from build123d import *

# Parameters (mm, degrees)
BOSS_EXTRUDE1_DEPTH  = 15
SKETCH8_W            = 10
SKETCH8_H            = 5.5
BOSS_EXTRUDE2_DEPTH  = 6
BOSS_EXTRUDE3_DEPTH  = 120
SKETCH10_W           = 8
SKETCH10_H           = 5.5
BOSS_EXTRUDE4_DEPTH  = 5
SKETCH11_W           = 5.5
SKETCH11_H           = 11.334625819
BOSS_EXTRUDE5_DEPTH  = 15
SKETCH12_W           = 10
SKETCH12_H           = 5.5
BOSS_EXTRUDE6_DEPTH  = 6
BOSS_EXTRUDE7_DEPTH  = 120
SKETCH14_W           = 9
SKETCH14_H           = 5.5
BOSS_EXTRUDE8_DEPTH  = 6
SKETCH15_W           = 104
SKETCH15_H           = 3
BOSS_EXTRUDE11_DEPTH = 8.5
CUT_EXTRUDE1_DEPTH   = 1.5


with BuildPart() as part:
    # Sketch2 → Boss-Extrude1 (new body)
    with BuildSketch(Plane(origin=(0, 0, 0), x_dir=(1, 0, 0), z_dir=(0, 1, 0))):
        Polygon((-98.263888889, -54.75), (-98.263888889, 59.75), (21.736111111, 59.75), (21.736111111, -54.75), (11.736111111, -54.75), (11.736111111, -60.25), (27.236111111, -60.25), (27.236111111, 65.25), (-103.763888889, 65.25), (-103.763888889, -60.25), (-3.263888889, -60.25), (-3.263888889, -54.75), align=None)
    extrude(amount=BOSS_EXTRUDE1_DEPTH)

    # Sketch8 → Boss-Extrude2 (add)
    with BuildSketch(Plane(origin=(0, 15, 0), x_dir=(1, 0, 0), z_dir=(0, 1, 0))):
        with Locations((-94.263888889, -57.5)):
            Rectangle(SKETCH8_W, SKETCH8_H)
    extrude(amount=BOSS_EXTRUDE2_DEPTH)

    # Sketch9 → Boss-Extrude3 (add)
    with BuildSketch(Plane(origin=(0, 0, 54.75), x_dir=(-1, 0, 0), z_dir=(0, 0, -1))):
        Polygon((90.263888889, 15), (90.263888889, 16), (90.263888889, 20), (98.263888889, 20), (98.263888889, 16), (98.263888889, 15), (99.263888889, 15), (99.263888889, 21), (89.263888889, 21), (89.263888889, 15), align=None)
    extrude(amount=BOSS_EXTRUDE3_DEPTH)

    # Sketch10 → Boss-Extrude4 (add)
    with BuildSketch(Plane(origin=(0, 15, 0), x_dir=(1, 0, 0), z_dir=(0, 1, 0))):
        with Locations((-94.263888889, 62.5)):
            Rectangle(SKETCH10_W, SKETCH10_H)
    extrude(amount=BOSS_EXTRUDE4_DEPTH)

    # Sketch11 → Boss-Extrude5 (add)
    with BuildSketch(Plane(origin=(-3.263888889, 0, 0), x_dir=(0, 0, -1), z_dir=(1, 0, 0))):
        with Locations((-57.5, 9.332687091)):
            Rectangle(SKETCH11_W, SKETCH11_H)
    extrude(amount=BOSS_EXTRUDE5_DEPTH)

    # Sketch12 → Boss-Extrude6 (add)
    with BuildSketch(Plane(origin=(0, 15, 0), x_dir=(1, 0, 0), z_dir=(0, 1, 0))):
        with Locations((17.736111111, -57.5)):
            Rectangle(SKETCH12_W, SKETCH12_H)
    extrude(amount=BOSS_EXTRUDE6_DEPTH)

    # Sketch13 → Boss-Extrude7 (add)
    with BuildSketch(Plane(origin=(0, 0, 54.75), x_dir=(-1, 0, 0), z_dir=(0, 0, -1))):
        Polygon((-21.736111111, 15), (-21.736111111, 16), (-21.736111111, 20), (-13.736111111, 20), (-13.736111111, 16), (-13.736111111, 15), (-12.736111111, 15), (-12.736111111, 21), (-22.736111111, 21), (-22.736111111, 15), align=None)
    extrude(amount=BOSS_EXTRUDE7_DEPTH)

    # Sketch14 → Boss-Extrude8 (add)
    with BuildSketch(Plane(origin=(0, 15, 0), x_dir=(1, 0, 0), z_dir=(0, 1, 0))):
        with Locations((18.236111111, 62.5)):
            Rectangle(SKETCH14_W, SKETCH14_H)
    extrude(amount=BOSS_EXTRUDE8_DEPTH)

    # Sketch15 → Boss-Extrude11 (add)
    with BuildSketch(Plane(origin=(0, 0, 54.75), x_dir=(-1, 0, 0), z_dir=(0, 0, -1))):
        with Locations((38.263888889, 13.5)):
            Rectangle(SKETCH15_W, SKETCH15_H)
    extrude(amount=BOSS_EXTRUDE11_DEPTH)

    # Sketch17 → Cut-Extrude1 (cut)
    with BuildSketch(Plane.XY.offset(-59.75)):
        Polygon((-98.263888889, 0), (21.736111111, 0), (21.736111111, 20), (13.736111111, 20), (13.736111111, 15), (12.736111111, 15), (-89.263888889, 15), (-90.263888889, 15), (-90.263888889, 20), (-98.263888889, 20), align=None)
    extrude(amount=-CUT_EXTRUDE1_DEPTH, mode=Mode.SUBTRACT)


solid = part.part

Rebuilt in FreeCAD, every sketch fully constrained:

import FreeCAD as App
import Part
import Sketcher

V = App.Vector
Q = App.Units.Quantity

doc = App.newDocument("Part")
body = doc.addObject("PartDesign::Body", "Body")

sketch1 = body.newObject("Sketcher::SketchObject", "Sketch")
sketch1.AttachmentSupport = (doc.getObject("XZ_Plane"), [""])
sketch1.MapMode = "FlatFace"
sketch1.addGeometry(Part.LineSegment(V(-98.263889, 54.75, 0), V(-98.263889, -59.75, 0)), False)
sketch1.addGeometry(Part.LineSegment(V(-98.263889, -59.75, 0), V(21.736111, -59.75, 0)), False)
sketch1.addGeometry(Part.LineSegment(V(21.736111, -59.75, 0), V(21.736111, 54.75, 0)), False)
sketch1.addGeometry(Part.LineSegment(V(21.736111, 54.75, 0), V(11.736111, 54.75, 0)), False)
sketch1.addGeometry(Part.LineSegment(V(11.736111, 54.75, 0), V(11.736111, 60.25, 0)), False)
sketch1.addGeometry(Part.LineSegment(V(11.736111, 60.25, 0), V(27.236111, 60.25, 0)), False)
sketch1.addGeometry(Part.LineSegment(V(27.236111, 60.25, 0), V(27.236111, -65.25, 0)), False)
sketch1.addGeometry(Part.LineSegment(V(27.236111, -65.25, 0), V(-103.763889, -65.25, 0)), False)
sketch1.addGeometry(Part.LineSegment(V(-103.763889, -65.25, 0), V(-103.763889, 60.25, 0)), False)
sketch1.addGeometry(Part.LineSegment(V(-103.763889, 60.25, 0), V(-3.263889, 60.25, 0)), False)
sketch1.addGeometry(Part.LineSegment(V(-3.263889, 60.25, 0), V(-3.263889, 54.75, 0)), False)
sketch1.addGeometry(Part.LineSegment(V(-3.263889, 54.75, 0), V(-98.263889, 54.75, 0)), False)
sketch1.addConstraint(Sketcher.Constraint("Coincident", 0, 2, 1, 1))
sketch1.addConstraint(Sketcher.Constraint("Coincident", 1, 2, 2, 1))
sketch1.addConstraint(Sketcher.Constraint("Coincident", 2, 2, 3, 1))
sketch1.addConstraint(Sketcher.Constraint("Coincident", 3, 2, 4, 1))
sketch1.addConstraint(Sketcher.Constraint("Coincident", 4, 2, 5, 1))
sketch1.addConstraint(Sketcher.Constraint("Coincident", 5, 2, 6, 1))
sketch1.addConstraint(Sketcher.Constraint("Coincident", 6, 2, 7, 1))
sketch1.addConstraint(Sketcher.Constraint("Coincident", 7, 2, 8, 1))
sketch1.addConstraint(Sketcher.Constraint("Coincident", 8, 2, 9, 1))
sketch1.addConstraint(Sketcher.Constraint("Coincident", 9, 2, 10, 1))
sketch1.addConstraint(Sketcher.Constraint("Coincident", 10, 2, 11, 1))
sketch1.addConstraint(Sketcher.Constraint("Coincident", 11, 2, 0, 1))
sketch1.addConstraint(Sketcher.Constraint("Vertical", 0))
sketch1.addConstraint(Sketcher.Constraint("Horizontal", 1))
sketch1.addConstraint(Sketcher.Constraint("Vertical", 2))
sketch1.addConstraint(Sketcher.Constraint("Horizontal", 3))
sketch1.addConstraint(Sketcher.Constraint("Vertical", 4))
sketch1.addConstraint(Sketcher.Constraint("Horizontal", 5))
sketch1.addConstraint(Sketcher.Constraint("Vertical", 6))
sketch1.addConstraint(Sketcher.Constraint("Horizontal", 7))
sketch1.addConstraint(Sketcher.Constraint("Vertical", 8))
sketch1.addConstraint(Sketcher.Constraint("Horizontal", 9))
sketch1.addConstraint(Sketcher.Constraint("Vertical", 10))
sketch1.addConstraint(Sketcher.Constraint("Horizontal", 11))
sketch1.addConstraint(Sketcher.Constraint("Horizontal", 5, 2, 8, 2))
sketch1.addConstraint(Sketcher.Constraint("Horizontal", 3, 2, 10, 2))
sketch1.addConstraint(Sketcher.Constraint("DistanceX", 1, 1, 1, 2, Q("120 mm")))
sketch1.addConstraint(Sketcher.Constraint("DistanceX", 3, 2, 3, 1, Q("10 mm")))
sketch1.addConstraint(Sketcher.Constraint("DistanceX", 7, 2, 7, 1, Q("131 mm")))
sketch1.addConstraint(Sketcher.Constraint("DistanceX", 11, 2, 11, 1, Q("95 mm")))
sketch1.addConstraint(Sketcher.Constraint("DistanceX", 5, 1, 5, 2, Q("15.5 mm")))
sketch1.addConstraint(Sketcher.Constraint("DistanceY", 0, 2, 0, 1, Q("114.5 mm")))
sketch1.addConstraint(Sketcher.Constraint("DistanceY", 4, 1, 4, 2, Q("5.5 mm")))
sketch1.addConstraint(Sketcher.Constraint("DistanceY", 6, 2, 6, 1, Q("125.5 mm")))
sketch1.addConstraint(Sketcher.Constraint("DistanceY", 0, 2, -1, 1, Q("59.75 mm")))
sketch1.addConstraint(Sketcher.Constraint("DistanceX", 0, 2, -1, 1, Q("98.263889 mm")))
pad1 = body.newObject("PartDesign::Pad", "Pad")
pad1.Profile = sketch1
pad1.Length = 15
pad1.Reversed = True

sketch2 = body.newObject("Sketcher::SketchObject", "Sketch001")
sketch2.AttachmentSupport = (doc.getObject("XZ_Plane"), [""])
sketch2.MapMode = "FlatFace"
sketch2.AttachmentOffset = App.Placement(V(0, 0, -15), App.Rotation())
sketch2.addGeometry(Part.LineSegment(V(-99.263889, 54.75, 0), V(-99.263889, 60.25, 0)), False)
sketch2.addGeometry(Part.LineSegment(V(-99.263889, 60.25, 0), V(-89.263889, 60.25, 0)), False)
sketch2.addGeometry(Part.LineSegment(V(-89.263889, 60.25, 0), V(-89.263889, 54.75, 0)), False)
sketch2.addGeometry(Part.LineSegment(V(-89.263889, 54.75, 0), V(-99.263889, 54.75, 0)), False)
sketch2.addConstraint(Sketcher.Constraint("Coincident", 0, 2, 1, 1))
sketch2.addConstraint(Sketcher.Constraint("Coincident", 1, 2, 2, 1))
sketch2.addConstraint(Sketcher.Constraint("Coincident", 2, 2, 3, 1))
sketch2.addConstraint(Sketcher.Constraint("Coincident", 3, 2, 0, 1))
sketch2.addConstraint(Sketcher.Constraint("Vertical", 0))
sketch2.addConstraint(Sketcher.Constraint("Horizontal", 1))
sketch2.addConstraint(Sketcher.Constraint("Vertical", 2))
sketch2.addConstraint(Sketcher.Constraint("Horizontal", 3))
sketch2.addConstraint(Sketcher.Constraint("DistanceX", 1, 1, 1, 2, Q("10 mm")))
sketch2.addConstraint(Sketcher.Constraint("DistanceY", 0, 1, 0, 2, Q("5.5 mm")))
sketch2.addConstraint(Sketcher.Constraint("DistanceY", -1, 1, 0, 2, Q("60.25 mm")))
sketch2.addConstraint(Sketcher.Constraint("DistanceX", 0, 2, -1, 1, Q("99.263889 mm")))
pad2 = body.newObject("PartDesign::Pad", "Pad001")
pad2.Profile = sketch2
pad2.Length = 6
pad2.Reversed = True

sketch3 = body.newObject("Sketcher::SketchObject", "Sketch002")
sketch3.AttachmentSupport = (doc.getObject("XY_Plane"), [""])
sketch3.MapMode = "FlatFace"
sketch3.AttachmentOffset = App.Placement(V(0, 0, 54.75), App.Rotation())
sketch3.addGeometry(Part.LineSegment(V(-90.263889, 15, 0), V(-90.263889, 20, 0)), False)
sketch3.addGeometry(Part.LineSegment(V(-90.263889, 20, 0), V(-98.263889, 20, 0)), False)
sketch3.addGeometry(Part.LineSegment(V(-98.263889, 20, 0), V(-98.263889, 15, 0)), False)
sketch3.addGeometry(Part.LineSegment(V(-98.263889, 15, 0), V(-99.263889, 15, 0)), False)
sketch3.addGeometry(Part.LineSegment(V(-99.263889, 15, 0), V(-99.263889, 21, 0)), False)
sketch3.addGeometry(Part.LineSegment(V(-99.263889, 21, 0), V(-89.263889, 21, 0)), False)
sketch3.addGeometry(Part.LineSegment(V(-89.263889, 21, 0), V(-89.263889, 15, 0)), False)
sketch3.addGeometry(Part.LineSegment(V(-89.263889, 15, 0), V(-90.263889, 15, 0)), False)
sketch3.addConstraint(Sketcher.Constraint("Coincident", 0, 2, 1, 1))
sketch3.addConstraint(Sketcher.Constraint("Coincident", 1, 2, 2, 1))
sketch3.addConstraint(Sketcher.Constraint("Coincident", 2, 2, 3, 1))
sketch3.addConstraint(Sketcher.Constraint("Coincident", 3, 2, 4, 1))
sketch3.addConstraint(Sketcher.Constraint("Coincident", 4, 2, 5, 1))
sketch3.addConstraint(Sketcher.Constraint("Coincident", 5, 2, 6, 1))
sketch3.addConstraint(Sketcher.Constraint("Coincident", 6, 2, 7, 1))
sketch3.addConstraint(Sketcher.Constraint("Coincident", 7, 2, 0, 1))
sketch3.addConstraint(Sketcher.Constraint("Vertical", 0))
sketch3.addConstraint(Sketcher.Constraint("Horizontal", 1))
sketch3.addConstraint(Sketcher.Constraint("Vertical", 2))
sketch3.addConstraint(Sketcher.Constraint("Horizontal", 3))
sketch3.addConstraint(Sketcher.Constraint("Vertical", 4))
sketch3.addConstraint(Sketcher.Constraint("Horizontal", 5))
sketch3.addConstraint(Sketcher.Constraint("Vertical", 6))
sketch3.addConstraint(Sketcher.Constraint("Horizontal", 7))
sketch3.addConstraint(Sketcher.Constraint("Horizontal", 3, 2, 6, 2))
sketch3.addConstraint(Sketcher.Constraint("Equal", 3, 7))
sketch3.addConstraint(Sketcher.Constraint("DistanceX", 1, 2, 1, 1, Q("8 mm")))
sketch3.addConstraint(Sketcher.Constraint("DistanceX", 3, 2, 3, 1, Q("1 mm")))
sketch3.addConstraint(Sketcher.Constraint("DistanceY", 0, 1, 0, 2, Q("5 mm")))
sketch3.addConstraint(Sketcher.Constraint("DistanceY", 4, 1, 4, 2, Q("6 mm")))
sketch3.addConstraint(Sketcher.Constraint("DistanceY", -1, 1, 0, 2, Q("20 mm")))
sketch3.addConstraint(Sketcher.Constraint("DistanceX", 0, 2, -1, 1, Q("90.263889 mm")))
pad3 = body.newObject("PartDesign::Pad", "Pad002")
pad3.Profile = sketch3
pad3.Length = 120
pad3.Reversed = True

sketch4 = body.newObject("Sketcher::SketchObject", "Sketch003")
sketch4.AttachmentSupport = (doc.getObject("XZ_Plane"), [""])
sketch4.MapMode = "FlatFace"
sketch4.AttachmentOffset = App.Placement(V(0, 0, -15), App.Rotation())
sketch4.addGeometry(Part.LineSegment(V(-98.263889, -65.25, 0), V(-98.263889, -59.75, 0)), False)
sketch4.addGeometry(Part.LineSegment(V(-98.263889, -59.75, 0), V(-90.263889, -59.75, 0)), False)
sketch4.addGeometry(Part.LineSegment(V(-90.263889, -59.75, 0), V(-90.263889, -65.25, 0)), False)
sketch4.addGeometry(Part.LineSegment(V(-90.263889, -65.25, 0), V(-98.263889, -65.25, 0)), False)
sketch4.addConstraint(Sketcher.Constraint("Coincident", 0, 2, 1, 1))
sketch4.addConstraint(Sketcher.Constraint("Coincident", 1, 2, 2, 1))
sketch4.addConstraint(Sketcher.Constraint("Coincident", 2, 2, 3, 1))
sketch4.addConstraint(Sketcher.Constraint("Coincident", 3, 2, 0, 1))
sketch4.addConstraint(Sketcher.Constraint("Vertical", 0))
sketch4.addConstraint(Sketcher.Constraint("Horizontal", 1))
sketch4.addConstraint(Sketcher.Constraint("Vertical", 2))
sketch4.addConstraint(Sketcher.Constraint("Horizontal", 3))
sketch4.addConstraint(Sketcher.Constraint("DistanceX", 1, 1, 1, 2, Q("8 mm")))
sketch4.addConstraint(Sketcher.Constraint("DistanceY", 0, 1, 0, 2, Q("5.5 mm")))
sketch4.addConstraint(Sketcher.Constraint("DistanceY", 0, 2, -1, 1, Q("59.75 mm")))
sketch4.addConstraint(Sketcher.Constraint("DistanceX", 0, 2, -1, 1, Q("98.263889 mm")))
pad4 = body.newObject("PartDesign::Pad", "Pad003")
pad4.Profile = sketch4
pad4.Length = 5
pad4.Reversed = True

sketch5 = body.newObject("Sketcher::SketchObject", "Sketch004")
sketch5.AttachmentSupport = (doc.getObject("YZ_Plane"), [""])
sketch5.MapMode = "FlatFace"
sketch5.AttachmentOffset = App.Placement(V(0, 0, -3.263889), App.Rotation())
sketch5.addGeometry(Part.LineSegment(V(15, 60.25, 0), V(3.665374, 60.25, 0)), False)
sketch5.addGeometry(Part.LineSegment(V(3.665374, 60.25, 0), V(3.665374, 54.75, 0)), False)
sketch5.addGeometry(Part.LineSegment(V(3.665374, 54.75, 0), V(15, 54.75, 0)), False)
sketch5.addGeometry(Part.LineSegment(V(15, 54.75, 0), V(15, 60.25, 0)), False)
sketch5.addConstraint(Sketcher.Constraint("Coincident", 0, 2, 1, 1))
sketch5.addConstraint(Sketcher.Constraint("Coincident", 1, 2, 2, 1))
sketch5.addConstraint(Sketcher.Constraint("Coincident", 2, 2, 3, 1))
sketch5.addConstraint(Sketcher.Constraint("Coincident", 3, 2, 0, 1))
sketch5.addConstraint(Sketcher.Constraint("Horizontal", 0))
sketch5.addConstraint(Sketcher.Constraint("Vertical", 1))
sketch5.addConstraint(Sketcher.Constraint("Horizontal", 2))
sketch5.addConstraint(Sketcher.Constraint("Vertical", 3))
sketch5.addConstraint(Sketcher.Constraint("DistanceY", 1, 2, 1, 1, Q("5.5 mm")))
sketch5.addConstraint(Sketcher.Constraint("DistanceX", -1, 1, 2, 2, Q("15 mm")))
sketch5.addConstraint(Sketcher.Constraint("DistanceY", -1, 1, 0, 2, Q("60.25 mm")))
sketch5.addConstraint(Sketcher.Constraint("DistanceX", 0, 2, 0, 1, Q("11.334626 mm")))
pad5 = body.newObject("PartDesign::Pad", "Pad004")
pad5.Profile = sketch5
pad5.Length = 15

sketch6 = body.newObject("Sketcher::SketchObject", "Sketch005")
sketch6.AttachmentSupport = (doc.getObject("XZ_Plane"), [""])
sketch6.MapMode = "FlatFace"
sketch6.AttachmentOffset = App.Placement(V(0, 0, -15), App.Rotation())
sketch6.addGeometry(Part.LineSegment(V(12.736111, 54.75, 0), V(12.736111, 60.25, 0)), False)
sketch6.addGeometry(Part.LineSegment(V(12.736111, 60.25, 0), V(22.736111, 60.25, 0)), False)
sketch6.addGeometry(Part.LineSegment(V(22.736111, 60.25, 0), V(22.736111, 54.75, 0)), False)
sketch6.addGeometry(Part.LineSegment(V(22.736111, 54.75, 0), V(12.736111, 54.75, 0)), False)
sketch6.addConstraint(Sketcher.Constraint("Coincident", 0, 2, 1, 1))
sketch6.addConstraint(Sketcher.Constraint("Coincident", 1, 2, 2, 1))
sketch6.addConstraint(Sketcher.Constraint("Coincident", 2, 2, 3, 1))
sketch6.addConstraint(Sketcher.Constraint("Coincident", 3, 2, 0, 1))
sketch6.addConstraint(Sketcher.Constraint("Vertical", 0))
sketch6.addConstraint(Sketcher.Constraint("Horizontal", 1))
sketch6.addConstraint(Sketcher.Constraint("Vertical", 2))
sketch6.addConstraint(Sketcher.Constraint("Horizontal", 3))
sketch6.addConstraint(Sketcher.Constraint("DistanceX", 1, 1, 1, 2, Q("10 mm")))
sketch6.addConstraint(Sketcher.Constraint("DistanceY", 0, 1, 0, 2, Q("5.5 mm")))
sketch6.addConstraint(Sketcher.Constraint("DistanceY", -1, 1, 0, 2, Q("60.25 mm")))
sketch6.addConstraint(Sketcher.Constraint("DistanceX", -1, 1, 0, 2, Q("12.736111 mm")))
pad6 = body.newObject("PartDesign::Pad", "Pad005")
pad6.Profile = sketch6
pad6.Length = 6
pad6.Reversed = True

sketch7 = body.newObject("Sketcher::SketchObject", "Sketch006")
sketch7.AttachmentSupport = (doc.getObject("XY_Plane"), [""])
sketch7.MapMode = "FlatFace"
sketch7.AttachmentOffset = App.Placement(V(0, 0, 54.75), App.Rotation())
sketch7.addGeometry(Part.LineSegment(V(21.736111, 15, 0), V(21.736111, 20, 0)), False)
sketch7.addGeometry(Part.LineSegment(V(21.736111, 20, 0), V(13.736111, 20, 0)), False)
sketch7.addGeometry(Part.LineSegment(V(13.736111, 20, 0), V(13.736111, 15, 0)), False)
sketch7.addGeometry(Part.LineSegment(V(13.736111, 15, 0), V(12.736111, 15, 0)), False)
sketch7.addGeometry(Part.LineSegment(V(12.736111, 15, 0), V(12.736111, 21, 0)), False)
sketch7.addGeometry(Part.LineSegment(V(12.736111, 21, 0), V(22.736111, 21, 0)), False)
sketch7.addGeometry(Part.LineSegment(V(22.736111, 21, 0), V(22.736111, 15, 0)), False)
sketch7.addGeometry(Part.LineSegment(V(22.736111, 15, 0), V(21.736111, 15, 0)), False)
sketch7.addConstraint(Sketcher.Constraint("Coincident", 0, 2, 1, 1))
sketch7.addConstraint(Sketcher.Constraint("Coincident", 1, 2, 2, 1))
sketch7.addConstraint(Sketcher.Constraint("Coincident", 2, 2, 3, 1))
sketch7.addConstraint(Sketcher.Constraint("Coincident", 3, 2, 4, 1))
sketch7.addConstraint(Sketcher.Constraint("Coincident", 4, 2, 5, 1))
sketch7.addConstraint(Sketcher.Constraint("Coincident", 5, 2, 6, 1))
sketch7.addConstraint(Sketcher.Constraint("Coincident", 6, 2, 7, 1))
sketch7.addConstraint(Sketcher.Constraint("Coincident", 7, 2, 0, 1))
sketch7.addConstraint(Sketcher.Constraint("Vertical", 0))
sketch7.addConstraint(Sketcher.Constraint("Horizontal", 1))
sketch7.addConstraint(Sketcher.Constraint("Vertical", 2))
sketch7.addConstraint(Sketcher.Constraint("Horizontal", 3))
sketch7.addConstraint(Sketcher.Constraint("Vertical", 4))
sketch7.addConstraint(Sketcher.Constraint("Horizontal", 5))
sketch7.addConstraint(Sketcher.Constraint("Vertical", 6))
sketch7.addConstraint(Sketcher.Constraint("Horizontal", 7))
sketch7.addConstraint(Sketcher.Constraint("Horizontal", 3, 2, 6, 2))
sketch7.addConstraint(Sketcher.Constraint("Equal", 3, 7))
sketch7.addConstraint(Sketcher.Constraint("DistanceX", 1, 2, 1, 1, Q("8 mm")))
sketch7.addConstraint(Sketcher.Constraint("DistanceX", 3, 2, 3, 1, Q("1 mm")))
sketch7.addConstraint(Sketcher.Constraint("DistanceY", 0, 1, 0, 2, Q("5 mm")))
sketch7.addConstraint(Sketcher.Constraint("DistanceY", 4, 1, 4, 2, Q("6 mm")))
sketch7.addConstraint(Sketcher.Constraint("DistanceY", -1, 1, 0, 2, Q("20 mm")))
sketch7.addConstraint(Sketcher.Constraint("DistanceX", -1, 1, 0, 2, Q("21.736111 mm")))
pad7 = body.newObject("PartDesign::Pad", "Pad006")
pad7.Profile = sketch7
pad7.Length = 120
pad7.Reversed = True

sketch8 = body.newObject("Sketcher::SketchObject", "Sketch007")
sketch8.AttachmentSupport = (doc.getObject("XZ_Plane"), [""])
sketch8.MapMode = "FlatFace"
sketch8.AttachmentOffset = App.Placement(V(0, 0, -15), App.Rotation())
sketch8.addGeometry(Part.LineSegment(V(13.736111, -65.25, 0), V(13.736111, -59.75, 0)), False)
sketch8.addGeometry(Part.LineSegment(V(13.736111, -59.75, 0), V(22.736111, -59.75, 0)), False)
sketch8.addGeometry(Part.LineSegment(V(22.736111, -59.75, 0), V(22.736111, -65.25, 0)), False)
sketch8.addGeometry(Part.LineSegment(V(22.736111, -65.25, 0), V(13.736111, -65.25, 0)), False)
sketch8.addConstraint(Sketcher.Constraint("Coincident", 0, 2, 1, 1))
sketch8.addConstraint(Sketcher.Constraint("Coincident", 1, 2, 2, 1))
sketch8.addConstraint(Sketcher.Constraint("Coincident", 2, 2, 3, 1))
sketch8.addConstraint(Sketcher.Constraint("Coincident", 3, 2, 0, 1))
sketch8.addConstraint(Sketcher.Constraint("Vertical", 0))
sketch8.addConstraint(Sketcher.Constraint("Horizontal", 1))
sketch8.addConstraint(Sketcher.Constraint("Vertical", 2))
sketch8.addConstraint(Sketcher.Constraint("Horizontal", 3))
sketch8.addConstraint(Sketcher.Constraint("DistanceX", 1, 1, 1, 2, Q("9 mm")))
sketch8.addConstraint(Sketcher.Constraint("DistanceY", 0, 1, 0, 2, Q("5.5 mm")))
sketch8.addConstraint(Sketcher.Constraint("DistanceY", 0, 2, -1, 1, Q("59.75 mm")))
sketch8.addConstraint(Sketcher.Constraint("DistanceX", -1, 1, 0, 2, Q("13.736111 mm")))
pad8 = body.newObject("PartDesign::Pad", "Pad007")
pad8.Profile = sketch8
pad8.Length = 6
pad8.Reversed = True

sketch9 = body.newObject("Sketcher::SketchObject", "Sketch008")
sketch9.AttachmentSupport = (doc.getObject("XY_Plane"), [""])
sketch9.MapMode = "FlatFace"
sketch9.AttachmentOffset = App.Placement(V(0, 0, 54.75), App.Rotation())
sketch9.addGeometry(Part.LineSegment(V(13.736111, 15, 0), V(13.736111, 12, 0)), False)
sketch9.addGeometry(Part.LineSegment(V(13.736111, 12, 0), V(-90.263889, 12, 0)), False)
sketch9.addGeometry(Part.LineSegment(V(-90.263889, 12, 0), V(-90.263889, 15, 0)), False)
sketch9.addGeometry(Part.LineSegment(V(-90.263889, 15, 0), V(13.736111, 15, 0)), False)
sketch9.addConstraint(Sketcher.Constraint("Coincident", 0, 2, 1, 1))
sketch9.addConstraint(Sketcher.Constraint("Coincident", 1, 2, 2, 1))
sketch9.addConstraint(Sketcher.Constraint("Coincident", 2, 2, 3, 1))
sketch9.addConstraint(Sketcher.Constraint("Coincident", 3, 2, 0, 1))
sketch9.addConstraint(Sketcher.Constraint("Vertical", 0))
sketch9.addConstraint(Sketcher.Constraint("Horizontal", 1))
sketch9.addConstraint(Sketcher.Constraint("Vertical", 2))
sketch9.addConstraint(Sketcher.Constraint("Horizontal", 3))
sketch9.addConstraint(Sketcher.Constraint("DistanceX", 1, 2, 1, 1, Q("104 mm")))
sketch9.addConstraint(Sketcher.Constraint("DistanceY", 0, 2, 0, 1, Q("3 mm")))
sketch9.addConstraint(Sketcher.Constraint("DistanceY", -1, 1, 0, 2, Q("12 mm")))
sketch9.addConstraint(Sketcher.Constraint("DistanceX", -1, 1, 0, 2, Q("13.736111 mm")))
pad9 = body.newObject("PartDesign::Pad", "Pad008")
pad9.Profile = sketch9
pad9.Length = 8.5
pad9.Reversed = True

sketch10 = body.newObject("Sketcher::SketchObject", "Sketch009")
sketch10.AttachmentSupport = (doc.getObject("XY_Plane"), [""])
sketch10.MapMode = "FlatFace"
sketch10.AttachmentOffset = App.Placement(V(0, 0, -59.75), App.Rotation())
sketch10.addGeometry(Part.LineSegment(V(-98.263889, 0, 0), V(21.736111, 0, 0)), False)
sketch10.addGeometry(Part.LineSegment(V(21.736111, 0, 0), V(21.736111, 20, 0)), False)
sketch10.addGeometry(Part.LineSegment(V(21.736111, 20, 0), V(13.736111, 20, 0)), False)
sketch10.addGeometry(Part.LineSegment(V(13.736111, 20, 0), V(13.736111, 15, 0)), False)
sketch10.addGeometry(Part.LineSegment(V(13.736111, 15, 0), V(-90.263889, 15, 0)), False)
sketch10.addGeometry(Part.LineSegment(V(-90.263889, 15, 0), V(-90.263889, 20, 0)), False)
sketch10.addGeometry(Part.LineSegment(V(-90.263889, 20, 0), V(-98.263889, 20, 0)), False)
sketch10.addGeometry(Part.LineSegment(V(-98.263889, 20, 0), V(-98.263889, 0, 0)), False)
sketch10.addConstraint(Sketcher.Constraint("Coincident", 0, 2, 1, 1))
sketch10.addConstraint(Sketcher.Constraint("Coincident", 1, 2, 2, 1))
sketch10.addConstraint(Sketcher.Constraint("Coincident", 2, 2, 3, 1))
sketch10.addConstraint(Sketcher.Constraint("Coincident", 3, 2, 4, 1))
sketch10.addConstraint(Sketcher.Constraint("Coincident", 4, 2, 5, 1))
sketch10.addConstraint(Sketcher.Constraint("Coincident", 5, 2, 6, 1))
sketch10.addConstraint(Sketcher.Constraint("Coincident", 6, 2, 7, 1))
sketch10.addConstraint(Sketcher.Constraint("Coincident", 7, 2, 0, 1))
sketch10.addConstraint(Sketcher.Constraint("Horizontal", 0))
sketch10.addConstraint(Sketcher.Constraint("Vertical", 1))
sketch10.addConstraint(Sketcher.Constraint("Horizontal", 2))
sketch10.addConstraint(Sketcher.Constraint("Vertical", 3))
sketch10.addConstraint(Sketcher.Constraint("Horizontal", 4))
sketch10.addConstraint(Sketcher.Constraint("Vertical", 5))
sketch10.addConstraint(Sketcher.Constraint("Horizontal", 6))
sketch10.addConstraint(Sketcher.Constraint("Vertical", 7))
sketch10.addConstraint(Sketcher.Constraint("PointOnObject", 0, 2, -1))
sketch10.addConstraint(Sketcher.Constraint("Horizontal", 2, 2, 5, 2))
sketch10.addConstraint(Sketcher.Constraint("Equal", 2, 6))
sketch10.addConstraint(Sketcher.Constraint("DistanceX", 0, 1, 0, 2, Q("120 mm")))
sketch10.addConstraint(Sketcher.Constraint("DistanceX", 2, 2, 2, 1, Q("8 mm")))
sketch10.addConstraint(Sketcher.Constraint("DistanceY", 1, 1, 1, 2, Q("20 mm")))
sketch10.addConstraint(Sketcher.Constraint("DistanceY", 3, 2, 3, 1, Q("5 mm")))
sketch10.addConstraint(Sketcher.Constraint("DistanceX", -1, 1, 0, 2, Q("21.736111 mm")))
pocket1 = body.newObject("PartDesign::Pocket", "Pocket")
pocket1.Profile = sketch10
pocket1.Length = 1.5

doc.recompute()
